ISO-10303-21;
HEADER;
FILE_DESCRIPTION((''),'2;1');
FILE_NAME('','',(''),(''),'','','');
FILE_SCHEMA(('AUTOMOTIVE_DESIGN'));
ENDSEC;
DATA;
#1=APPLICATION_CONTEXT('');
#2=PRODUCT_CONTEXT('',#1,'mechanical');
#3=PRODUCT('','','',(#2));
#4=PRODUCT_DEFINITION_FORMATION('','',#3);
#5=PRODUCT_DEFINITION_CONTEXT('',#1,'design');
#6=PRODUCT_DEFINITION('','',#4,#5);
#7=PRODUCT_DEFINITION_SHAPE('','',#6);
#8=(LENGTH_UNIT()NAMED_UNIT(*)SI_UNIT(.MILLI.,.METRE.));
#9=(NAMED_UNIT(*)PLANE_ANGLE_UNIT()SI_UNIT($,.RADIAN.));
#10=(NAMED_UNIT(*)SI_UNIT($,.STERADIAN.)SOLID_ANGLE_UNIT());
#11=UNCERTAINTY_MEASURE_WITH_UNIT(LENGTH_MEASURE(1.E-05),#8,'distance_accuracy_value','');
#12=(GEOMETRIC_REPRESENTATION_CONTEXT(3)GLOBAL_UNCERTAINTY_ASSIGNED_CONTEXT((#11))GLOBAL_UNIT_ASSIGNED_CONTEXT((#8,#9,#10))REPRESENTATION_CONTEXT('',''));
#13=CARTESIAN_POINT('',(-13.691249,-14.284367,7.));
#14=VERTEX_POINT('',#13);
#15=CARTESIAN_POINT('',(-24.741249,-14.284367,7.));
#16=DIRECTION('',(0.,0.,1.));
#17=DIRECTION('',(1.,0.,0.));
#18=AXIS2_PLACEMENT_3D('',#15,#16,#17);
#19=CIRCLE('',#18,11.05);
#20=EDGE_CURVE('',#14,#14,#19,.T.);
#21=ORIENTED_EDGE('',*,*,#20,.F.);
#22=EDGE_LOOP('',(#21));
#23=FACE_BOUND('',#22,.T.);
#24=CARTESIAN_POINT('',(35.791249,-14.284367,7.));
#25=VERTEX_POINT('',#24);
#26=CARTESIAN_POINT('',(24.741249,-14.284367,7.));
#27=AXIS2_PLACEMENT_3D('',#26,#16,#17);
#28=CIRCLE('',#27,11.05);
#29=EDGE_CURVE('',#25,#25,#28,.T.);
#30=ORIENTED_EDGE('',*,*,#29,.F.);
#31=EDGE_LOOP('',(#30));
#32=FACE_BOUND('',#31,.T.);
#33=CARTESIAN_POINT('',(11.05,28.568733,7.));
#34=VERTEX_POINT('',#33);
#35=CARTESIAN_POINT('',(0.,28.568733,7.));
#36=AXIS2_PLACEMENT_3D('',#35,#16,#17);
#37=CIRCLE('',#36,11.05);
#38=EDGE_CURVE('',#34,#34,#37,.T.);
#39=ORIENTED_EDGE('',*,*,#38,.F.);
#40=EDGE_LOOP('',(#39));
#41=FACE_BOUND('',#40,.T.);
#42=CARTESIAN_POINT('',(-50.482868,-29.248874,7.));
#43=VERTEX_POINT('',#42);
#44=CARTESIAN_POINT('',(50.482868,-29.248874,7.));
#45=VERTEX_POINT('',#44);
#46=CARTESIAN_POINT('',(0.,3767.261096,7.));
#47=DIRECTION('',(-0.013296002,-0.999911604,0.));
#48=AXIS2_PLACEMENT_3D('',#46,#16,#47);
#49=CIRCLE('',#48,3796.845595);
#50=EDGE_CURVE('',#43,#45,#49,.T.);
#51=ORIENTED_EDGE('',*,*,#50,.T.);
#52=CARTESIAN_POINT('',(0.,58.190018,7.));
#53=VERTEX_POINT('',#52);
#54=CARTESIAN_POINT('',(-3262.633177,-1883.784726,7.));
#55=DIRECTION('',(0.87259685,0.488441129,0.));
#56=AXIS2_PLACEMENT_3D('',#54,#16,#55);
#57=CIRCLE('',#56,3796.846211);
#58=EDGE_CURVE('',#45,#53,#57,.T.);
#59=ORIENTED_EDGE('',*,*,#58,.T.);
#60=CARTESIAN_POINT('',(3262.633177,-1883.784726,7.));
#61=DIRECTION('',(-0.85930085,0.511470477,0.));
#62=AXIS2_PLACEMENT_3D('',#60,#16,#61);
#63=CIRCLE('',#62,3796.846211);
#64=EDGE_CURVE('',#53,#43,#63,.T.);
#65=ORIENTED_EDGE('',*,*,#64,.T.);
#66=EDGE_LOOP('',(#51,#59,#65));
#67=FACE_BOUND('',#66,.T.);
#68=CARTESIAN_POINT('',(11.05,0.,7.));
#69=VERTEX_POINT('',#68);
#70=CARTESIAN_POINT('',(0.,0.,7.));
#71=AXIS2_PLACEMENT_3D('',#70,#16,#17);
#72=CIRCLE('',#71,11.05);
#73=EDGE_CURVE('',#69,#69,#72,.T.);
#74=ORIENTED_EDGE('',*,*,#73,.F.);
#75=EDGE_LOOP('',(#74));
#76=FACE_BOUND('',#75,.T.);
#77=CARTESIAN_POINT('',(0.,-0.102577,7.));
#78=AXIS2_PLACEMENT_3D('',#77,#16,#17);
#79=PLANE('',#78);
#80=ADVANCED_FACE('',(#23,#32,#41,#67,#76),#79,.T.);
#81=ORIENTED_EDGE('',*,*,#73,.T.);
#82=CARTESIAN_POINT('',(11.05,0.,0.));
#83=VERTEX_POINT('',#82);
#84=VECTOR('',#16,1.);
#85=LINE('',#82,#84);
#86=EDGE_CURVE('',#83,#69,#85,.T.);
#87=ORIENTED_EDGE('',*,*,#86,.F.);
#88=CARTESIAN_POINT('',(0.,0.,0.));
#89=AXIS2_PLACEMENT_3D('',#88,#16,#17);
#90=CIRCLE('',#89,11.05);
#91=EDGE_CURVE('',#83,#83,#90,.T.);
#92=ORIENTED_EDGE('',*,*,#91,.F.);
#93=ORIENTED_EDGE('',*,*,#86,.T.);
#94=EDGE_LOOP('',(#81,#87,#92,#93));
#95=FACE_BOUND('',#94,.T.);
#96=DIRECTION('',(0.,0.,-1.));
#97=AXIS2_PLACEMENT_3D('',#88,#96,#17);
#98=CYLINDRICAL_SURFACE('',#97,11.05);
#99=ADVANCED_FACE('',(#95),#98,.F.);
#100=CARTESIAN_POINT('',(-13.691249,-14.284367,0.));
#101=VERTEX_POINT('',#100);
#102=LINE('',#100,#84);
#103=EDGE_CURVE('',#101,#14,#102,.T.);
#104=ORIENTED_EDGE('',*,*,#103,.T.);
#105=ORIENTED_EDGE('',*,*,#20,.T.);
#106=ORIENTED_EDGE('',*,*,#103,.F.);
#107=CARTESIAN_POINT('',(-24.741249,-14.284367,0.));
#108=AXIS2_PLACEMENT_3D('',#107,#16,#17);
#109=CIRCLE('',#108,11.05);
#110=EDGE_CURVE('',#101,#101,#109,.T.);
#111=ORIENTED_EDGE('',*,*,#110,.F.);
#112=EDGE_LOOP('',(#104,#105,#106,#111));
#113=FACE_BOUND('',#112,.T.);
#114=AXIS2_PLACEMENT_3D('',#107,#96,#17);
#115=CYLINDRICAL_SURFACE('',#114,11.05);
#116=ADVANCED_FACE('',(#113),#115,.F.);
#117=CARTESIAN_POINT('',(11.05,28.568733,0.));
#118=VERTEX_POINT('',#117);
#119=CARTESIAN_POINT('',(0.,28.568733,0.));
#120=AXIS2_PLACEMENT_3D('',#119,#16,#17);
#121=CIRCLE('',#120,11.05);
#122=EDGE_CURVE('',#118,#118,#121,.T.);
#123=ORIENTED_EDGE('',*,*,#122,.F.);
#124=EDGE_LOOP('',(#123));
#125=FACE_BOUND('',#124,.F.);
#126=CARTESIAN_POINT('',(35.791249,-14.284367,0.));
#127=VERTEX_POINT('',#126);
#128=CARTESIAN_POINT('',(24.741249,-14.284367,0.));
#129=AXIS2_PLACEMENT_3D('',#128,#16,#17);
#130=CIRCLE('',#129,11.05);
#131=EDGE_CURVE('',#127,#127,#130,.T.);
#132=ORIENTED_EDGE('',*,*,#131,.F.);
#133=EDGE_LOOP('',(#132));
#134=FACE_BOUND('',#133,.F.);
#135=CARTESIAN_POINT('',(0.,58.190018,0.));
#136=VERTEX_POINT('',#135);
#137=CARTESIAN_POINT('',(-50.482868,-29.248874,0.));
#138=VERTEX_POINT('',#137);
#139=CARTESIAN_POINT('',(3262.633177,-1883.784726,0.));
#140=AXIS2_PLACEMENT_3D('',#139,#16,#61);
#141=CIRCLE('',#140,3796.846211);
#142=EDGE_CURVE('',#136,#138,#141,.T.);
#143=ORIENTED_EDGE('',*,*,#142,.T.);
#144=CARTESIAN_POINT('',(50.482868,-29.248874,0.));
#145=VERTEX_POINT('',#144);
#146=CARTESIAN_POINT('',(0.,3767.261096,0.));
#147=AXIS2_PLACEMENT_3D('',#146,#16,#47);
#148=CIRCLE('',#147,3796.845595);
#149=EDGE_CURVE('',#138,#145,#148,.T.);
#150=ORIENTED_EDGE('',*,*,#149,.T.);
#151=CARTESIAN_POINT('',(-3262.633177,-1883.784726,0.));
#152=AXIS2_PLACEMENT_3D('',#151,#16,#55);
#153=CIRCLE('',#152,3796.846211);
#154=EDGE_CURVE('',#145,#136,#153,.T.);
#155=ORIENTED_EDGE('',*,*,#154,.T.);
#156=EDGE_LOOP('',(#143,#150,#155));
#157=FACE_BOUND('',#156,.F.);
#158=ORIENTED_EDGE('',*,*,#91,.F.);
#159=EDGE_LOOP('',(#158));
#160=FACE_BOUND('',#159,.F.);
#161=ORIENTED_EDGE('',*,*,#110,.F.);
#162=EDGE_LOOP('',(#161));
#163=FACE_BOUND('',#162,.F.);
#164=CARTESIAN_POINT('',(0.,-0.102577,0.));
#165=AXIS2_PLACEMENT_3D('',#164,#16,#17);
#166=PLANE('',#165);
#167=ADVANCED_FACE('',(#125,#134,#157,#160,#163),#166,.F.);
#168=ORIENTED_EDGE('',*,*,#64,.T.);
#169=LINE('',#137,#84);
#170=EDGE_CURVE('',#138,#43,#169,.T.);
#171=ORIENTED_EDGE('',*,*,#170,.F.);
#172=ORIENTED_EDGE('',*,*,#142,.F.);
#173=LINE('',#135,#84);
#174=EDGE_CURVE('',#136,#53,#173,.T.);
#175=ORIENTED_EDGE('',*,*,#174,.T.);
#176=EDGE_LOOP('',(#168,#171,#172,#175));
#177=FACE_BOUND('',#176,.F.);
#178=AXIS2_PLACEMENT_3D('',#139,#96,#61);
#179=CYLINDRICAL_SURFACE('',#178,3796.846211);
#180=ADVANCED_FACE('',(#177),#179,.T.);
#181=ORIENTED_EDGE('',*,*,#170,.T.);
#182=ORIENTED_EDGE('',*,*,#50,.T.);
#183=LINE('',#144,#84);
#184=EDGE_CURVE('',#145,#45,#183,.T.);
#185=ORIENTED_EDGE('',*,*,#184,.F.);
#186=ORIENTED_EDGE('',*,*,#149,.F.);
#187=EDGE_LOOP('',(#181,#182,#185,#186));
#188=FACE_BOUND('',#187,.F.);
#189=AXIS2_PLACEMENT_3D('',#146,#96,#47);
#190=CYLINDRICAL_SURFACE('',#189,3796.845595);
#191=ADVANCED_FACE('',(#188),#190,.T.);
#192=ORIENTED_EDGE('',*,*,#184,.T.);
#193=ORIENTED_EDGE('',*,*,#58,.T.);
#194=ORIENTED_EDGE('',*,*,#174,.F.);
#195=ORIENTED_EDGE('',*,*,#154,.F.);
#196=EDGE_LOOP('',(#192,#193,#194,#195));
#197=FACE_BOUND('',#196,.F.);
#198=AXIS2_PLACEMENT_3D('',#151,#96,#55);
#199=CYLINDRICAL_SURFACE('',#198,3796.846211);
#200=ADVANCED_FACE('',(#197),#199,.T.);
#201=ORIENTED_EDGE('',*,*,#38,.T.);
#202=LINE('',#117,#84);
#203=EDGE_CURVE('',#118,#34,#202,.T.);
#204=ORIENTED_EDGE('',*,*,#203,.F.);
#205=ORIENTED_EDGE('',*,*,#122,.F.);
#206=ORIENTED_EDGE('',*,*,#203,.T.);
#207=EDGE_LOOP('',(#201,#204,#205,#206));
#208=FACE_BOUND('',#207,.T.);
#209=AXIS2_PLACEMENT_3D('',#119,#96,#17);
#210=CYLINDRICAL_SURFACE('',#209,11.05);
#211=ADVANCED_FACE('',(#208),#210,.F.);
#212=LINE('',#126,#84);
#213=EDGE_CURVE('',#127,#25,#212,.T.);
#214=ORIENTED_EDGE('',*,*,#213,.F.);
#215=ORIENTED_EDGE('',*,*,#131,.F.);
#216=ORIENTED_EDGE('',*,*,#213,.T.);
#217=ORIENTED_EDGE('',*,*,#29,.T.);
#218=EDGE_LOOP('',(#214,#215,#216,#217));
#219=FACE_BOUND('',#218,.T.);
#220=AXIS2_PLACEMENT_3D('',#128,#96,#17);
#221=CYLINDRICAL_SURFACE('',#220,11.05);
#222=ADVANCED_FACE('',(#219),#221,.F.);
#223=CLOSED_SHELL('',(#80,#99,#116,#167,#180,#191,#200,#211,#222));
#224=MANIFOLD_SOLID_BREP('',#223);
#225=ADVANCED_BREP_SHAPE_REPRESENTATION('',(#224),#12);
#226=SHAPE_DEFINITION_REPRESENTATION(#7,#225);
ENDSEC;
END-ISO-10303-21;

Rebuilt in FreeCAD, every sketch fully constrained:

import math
import FreeCAD as App
import Part
import Sketcher

V = App.Vector
Q = App.Units.Quantity

doc = App.newDocument("Part")
params = doc.addObject("Spreadsheet::Sheet", "Params")
for row, (alias, value) in enumerate([
    ("sketch1_diameter", "22.1 mm"),
    ("pad1_length", "7 mm"),
], start=1):
    params.set(f"A{row}", alias)
    params.set(f"B{row}", "=" + value)
    params.setAlias(f"B{row}", alias)

body = doc.addObject("PartDesign::Body", "Body")

sketch1 = body.newObject("Sketcher::SketchObject", "Sketch")
sketch1.AttachmentSupport = (doc.getObject("XY_Plane"), [""])
sketch1.MapMode = "FlatFace"
sketch1.addGeometry(Part.ArcOfCircle(Part.Circle(V(-3263, -1884, 0), V(0, 0, 1), 3797), math.radians(29.24), math.radians(30.76)), False)
sketch1.addGeometry(Part.ArcOfCircle(Part.Circle(V(3263, -1884, 0), V(0, 0, 1), 3797), math.radians(149.24), math.radians(150.76)), False)
sketch1.addGeometry(Part.ArcOfCircle(Part.Circle(V(0, 3767, 0), V(0, 0, 1), 3797), math.radians(-90.76), math.radians(-89.24)), False)
sketch1.addGeometry(Part.Circle(V(-25, -14, 0), V(0, 0, 1), 11), False)
sketch1.addGeometry(Part.Circle(V(25, -14, 0), V(0, 0, 1), 11), False)
sketch1.addGeometry(Part.Circle(V(0, 0, 0), V(0, 0, 1), 11), False)
sketch1.addGeometry(Part.Circle(V(0, 29, 0), V(0, 0, 1), 11), False)
sketch1.addConstraint(Sketcher.Constraint("Coincident", 0, 2, 1, 1))
sketch1.addConstraint(Sketcher.Constraint("Coincident", 1, 2, 2, 1))
sketch1.addConstraint(Sketcher.Constraint("Coincident", 2, 2, 0, 1))
sketch1.addConstraint(Sketcher.Constraint("Coincident", 5, 3, -1, 1))
sketch1.addConstraint(Sketcher.Constraint("Equal", 0, 1))
sketch1.addConstraint(Sketcher.Constraint("Equal", 3, 4))
sketch1.addConstraint(Sketcher.Constraint("Equal", 4, 5))
sketch1.addConstraint(Sketcher.Constraint("Equal", 5, 6))
sketch1.addConstraint(Sketcher.Constraint("Symmetric", 0, 3, 1, 3, -2))
sketch1.addConstraint(Sketcher.Constraint("Symmetric", 3, 3, 4, 3, -2))
sketch1.addConstraint(Sketcher.Constraint("PointOnObject", 2, 3, -2))
sketch1.addConstraint(Sketcher.Constraint("PointOnObject", 6, 3, -2))
sketch1.addConstraint(Sketcher.Constraint("Diameter", 3, Q("22.1 mm")))
sketch1.addConstraint(Sketcher.Constraint("Radius", 0, Q("3796.846211 mm")))
sketch1.addConstraint(Sketcher.Constraint("Radius", 2, Q("3796.845595 mm")))
sketch1.addConstraint(Sketcher.Constraint("DistanceY", 3, 3, 6, 3, Q("42.8531 mm")))
sketch1.addConstraint(Sketcher.Constraint("DistanceX", 3, 3, -1, 1, Q("24.741249 mm")))
sketch1.addConstraint(Sketcher.Constraint("DistanceY", 0, 3, 2, 3, Q("5651.045822 mm")))
sketch1.addConstraint(Sketcher.Constraint("DistanceY", 0, 3, 3, 3, Q("1869.500359 mm")))
sketch1.addConstraint(Sketcher.Constraint("DistanceX", 0, 3, -1, 1, Q("3262.633177 mm")))
sketch1.addConstraint(Sketcher.Constraint("DistanceY", 0, 3, -1, 1, Q("1883.784726 mm")))
sketch1.setExpression("Constraints[12]", "Params.sketch1_diameter")
pad1 = body.newObject("PartDesign::Pad", "Pad")
pad1.Profile = sketch1
pad1.setExpression("Length", "Params.pad1_length")

doc.recompute()
